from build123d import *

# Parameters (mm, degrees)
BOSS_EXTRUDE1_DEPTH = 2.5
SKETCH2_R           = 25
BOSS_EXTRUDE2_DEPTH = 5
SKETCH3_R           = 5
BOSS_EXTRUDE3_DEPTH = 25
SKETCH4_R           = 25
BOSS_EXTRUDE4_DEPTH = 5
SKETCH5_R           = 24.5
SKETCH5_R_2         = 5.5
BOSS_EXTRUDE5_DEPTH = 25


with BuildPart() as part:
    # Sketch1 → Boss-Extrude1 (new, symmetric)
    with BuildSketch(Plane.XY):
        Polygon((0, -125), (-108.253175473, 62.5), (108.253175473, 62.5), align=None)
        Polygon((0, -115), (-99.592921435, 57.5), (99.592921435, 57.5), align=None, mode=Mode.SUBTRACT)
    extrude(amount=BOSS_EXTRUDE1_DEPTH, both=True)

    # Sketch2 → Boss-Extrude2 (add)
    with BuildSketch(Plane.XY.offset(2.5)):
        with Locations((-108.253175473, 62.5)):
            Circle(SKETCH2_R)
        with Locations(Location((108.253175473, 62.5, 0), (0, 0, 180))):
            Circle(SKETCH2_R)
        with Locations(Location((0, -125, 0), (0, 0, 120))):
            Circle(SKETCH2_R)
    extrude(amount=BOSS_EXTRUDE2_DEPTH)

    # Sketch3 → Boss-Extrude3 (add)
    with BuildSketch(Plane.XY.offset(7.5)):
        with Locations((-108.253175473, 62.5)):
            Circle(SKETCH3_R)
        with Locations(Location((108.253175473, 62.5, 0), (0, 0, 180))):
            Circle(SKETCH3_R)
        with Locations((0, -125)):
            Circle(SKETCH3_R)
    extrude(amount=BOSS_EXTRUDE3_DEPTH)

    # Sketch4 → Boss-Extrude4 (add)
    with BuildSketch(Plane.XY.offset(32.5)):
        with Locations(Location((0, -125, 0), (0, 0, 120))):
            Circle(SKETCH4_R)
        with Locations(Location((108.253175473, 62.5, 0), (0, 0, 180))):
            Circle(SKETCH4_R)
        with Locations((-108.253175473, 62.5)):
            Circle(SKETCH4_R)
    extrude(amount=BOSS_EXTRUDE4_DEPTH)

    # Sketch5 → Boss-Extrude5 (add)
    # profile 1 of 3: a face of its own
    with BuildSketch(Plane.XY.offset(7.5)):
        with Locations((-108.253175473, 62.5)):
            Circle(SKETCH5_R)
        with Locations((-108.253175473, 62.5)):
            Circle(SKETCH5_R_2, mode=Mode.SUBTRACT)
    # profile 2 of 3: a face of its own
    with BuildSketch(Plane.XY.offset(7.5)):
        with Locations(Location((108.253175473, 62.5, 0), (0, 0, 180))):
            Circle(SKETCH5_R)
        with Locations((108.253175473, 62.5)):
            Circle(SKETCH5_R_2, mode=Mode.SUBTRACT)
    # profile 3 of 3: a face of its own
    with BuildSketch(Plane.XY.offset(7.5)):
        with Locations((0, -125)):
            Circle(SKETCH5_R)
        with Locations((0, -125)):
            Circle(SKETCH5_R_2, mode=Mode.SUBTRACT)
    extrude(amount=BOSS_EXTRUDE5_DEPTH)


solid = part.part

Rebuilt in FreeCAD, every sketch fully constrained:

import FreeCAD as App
import Part
import Sketcher

V = App.Vector
Q = App.Units.Quantity


def add_polygon(sketch, points):
    """Adds a closed chain of lines whose ends are joined by coincident constraints."""
    first, n = sketch.GeometryCount, len(points)
    for a, b in zip(points, points[1:] + points[:1]):
        sketch.addGeometry(Part.LineSegment(App.Vector(*a, 0), App.Vector(*b, 0)), False)
    for i in range(n):
        sketch.addConstraint(Sketcher.Constraint("Coincident", first + i, 2, first + (i + 1) % n, 1))

doc = App.newDocument("Part")
body = doc.addObject("PartDesign::Body", "Body")

# Sketch on XY plane
sketch1 = doc.addObject("Sketcher::SketchObject", "Sketch")
body.addObject(sketch1)
sketch1.AttachmentSupport = (doc.XY_Plane, [""])
sketch1.MapMode = "FlatFace"
add_polygon(sketch1, [(-108.253175, 62.5), (0, -125), (108.253175, 62.5)])  # lines 0-2
add_polygon(sketch1, [(0, -115), (-99.592921, 57.5), (99.592921, 57.5)])  # lines 3-5
sketch1.addConstraint([
    Sketcher.Constraint("Horizontal", 2),
    Sketcher.Constraint("Horizontal", 4),
    Sketcher.Constraint("PointOnObject", 0, 2, -2),
    Sketcher.Constraint("PointOnObject", 5, 2, -2),
    Sketcher.Constraint("Parallel", 0, 3),
    Sketcher.Constraint("Parallel", 1, 5),
    Sketcher.Constraint("Equal", 0, 1),
    Sketcher.Constraint("Angle", 0, Q("-60 deg")),
    Sketcher.Constraint("DistanceY", 0, 2, -1, 1, 125.0),
    Sketcher.Constraint("DistanceY", 5, 2, -1, 1, 115.0),
    Sketcher.Constraint("DistanceY", 3, 2, 2, 2, 5.0),
    Sketcher.Constraint("DistanceY", -1, 1, 1, 2, 62.5),
])
pad1 = doc.addObject("PartDesign::Pad", "Pad")
body.addObject(pad1)
pad1.Profile = sketch1
pad1.Length = 5
pad1.Midplane = True

# Sketch on XY plane
sketch2 = doc.addObject("Sketcher::SketchObject", "Sketch001")
body.addObject(sketch2)
sketch2.AttachmentSupport = (doc.XY_Plane, [""])
sketch2.MapMode = "FlatFace"
sketch2.AttachmentOffset = App.Placement(V(0, 0, 2.5), App.Rotation())
sketch2.addGeometry([
    Part.Circle(V(-108.253175, 62.5, 0), V(0, 0, 1), 25),
    Part.Circle(V(108.253175, 62.5, 0), V(0, 0, 1), 25),
    Part.Circle(V(0, -125, 0), V(0, 0, 1), 25),
], False)
sketch2.addConstraint([
    Sketcher.Constraint("Equal", 0, 1),
    Sketcher.Constraint("Equal", 1, 2),
    Sketcher.Constraint("Symmetric", 0, 3, 1, 3, -2),
    Sketcher.Constraint("PointOnObject", 2, 3, -2),
    Sketcher.Constraint("Diameter", 0, 50.0),
    Sketcher.Constraint("DistanceY", 2, 3, -1, 1, 125.0),
    Sketcher.Constraint("DistanceY", -1, 1, 0, 3, 62.5),
    Sketcher.Constraint("DistanceX", 0, 3, 1, 3, 216.506351),
])
pad2 = doc.addObject("PartDesign::Pad", "Pad001")
body.addObject(pad2)
pad2.Profile = sketch2
pad2.Length = 5

# Sketch on XY plane
sketch3 = doc.addObject("Sketcher::SketchObject", "Sketch002")
body.addObject(sketch3)
sketch3.AttachmentSupport = (doc.XY_Plane, [""])
sketch3.MapMode = "FlatFace"
sketch3.AttachmentOffset = App.Placement(V(0, 0, 7.5), App.Rotation())
sketch3.addGeometry([
    Part.Circle(V(-108.253175, 62.5, 0), V(0, 0, 1), 5),
    Part.Circle(V(108.253175, 62.5, 0), V(0, 0, 1), 5),
    Part.Circle(V(0, -125, 0), V(0, 0, 1), 5),
], False)
sketch3.addConstraint([
    Sketcher.Constraint("Equal", 0, 1),
    Sketcher.Constraint("Equal", 1, 2),
    Sketcher.Constraint("Symmetric", 0, 3, 1, 3, -2),
    Sketcher.Constraint("PointOnObject", 2, 3, -2),
    Sketcher.Constraint("Diameter", 0, 10.0),
    Sketcher.Constraint("DistanceY", 2, 3, -1, 1, 125.0),
    Sketcher.Constraint("DistanceY", -1, 1, 0, 3, 62.5),
    Sketcher.Constraint("DistanceX", 0, 3, 1, 3, 216.506351),
])
pad3 = doc.addObject("PartDesign::Pad", "Pad002")
body.addObject(pad3)
pad3.Profile = sketch3
pad3.Length = 25

# Sketch on XY plane
sketch4 = doc.addObject("Sketcher::SketchObject", "Sketch003")
body.addObject(sketch4)
sketch4.AttachmentSupport = (doc.XY_Plane, [""])
sketch4.MapMode = "FlatFace"
sketch4.AttachmentOffset = App.Placement(V(0, 0, 32.5), App.Rotation())
sketch4.addGeometry([
    Part.Circle(V(0, -125, 0), V(0, 0, 1), 25),
    Part.Circle(V(108.253175, 62.5, 0), V(0, 0, 1), 25),
    Part.Circle(V(-108.253175, 62.5, 0), V(0, 0, 1), 25),
], False)
sketch4.addConstraint([
    Sketcher.Constraint("Equal", 0, 1),
    Sketcher.Constraint("Equal", 1, 2),
    Sketcher.Constraint("Symmetric", 1, 3, 2, 3, -2),
    Sketcher.Constraint("PointOnObject", 0, 3, -2),
    Sketcher.Constraint("Diameter", 0, 50.0),
    Sketcher.Constraint("DistanceY", 0, 3, -1, 1, 125.0),
    Sketcher.Constraint("DistanceY", -1, 1, 1, 3, 62.5),
    Sketcher.Constraint("DistanceX", 2, 3, 1, 3, 216.506351),
])
pad4 = doc.addObject("PartDesign::Pad", "Pad003")
body.addObject(pad4)
pad4.Profile = sketch4
pad4.Length = 5

# Sketch on XY plane
sketch5 = doc.addObject("Sketcher::SketchObject", "Sketch004")
body.addObject(sketch5)
sketch5.AttachmentSupport = (doc.XY_Plane, [""])
sketch5.MapMode = "FlatFace"
sketch5.AttachmentOffset = App.Placement(V(0, 0, 7.5), App.Rotation())
sketch5.addGeometry([
    Part.Circle(V(-108.253175, 62.5, 0), V(0, 0, 1), 24.5),  # 0
    Part.Circle(V(-108.253175, 62.5, 0), V(0, 0, 1), 5.5),  # 1
    Part.Circle(V(108.253175, 62.5, 0), V(0, 0, 1), 24.5),  # 2
    Part.Circle(V(108.253175, 62.5, 0), V(0, 0, 1), 5.5),  # 3
    Part.Circle(V(0, -125, 0), V(0, 0, 1), 24.5),  # 4
    Part.Circle(V(0, -125, 0), V(0, 0, 1), 5.5),  # 5
], False)
sketch5.addConstraint([
    Sketcher.Constraint("Coincident", 1, 3, 0, 3),
    Sketcher.Constraint("Coincident", 3, 3, 2, 3),
    Sketcher.Constraint("Coincident", 5, 3, 4, 3),
    Sketcher.Constraint("Equal", 0, 2),
    Sketcher.Constraint("Equal", 1, 3),
    Sketcher.Constraint("Equal", 2, 4),
    Sketcher.Constraint("Equal", 3, 5),
    Sketcher.Constraint("Symmetric", 0, 3, 2, 3, -2),
    Sketcher.Constraint("PointOnObject", 4, 3, -2),
    Sketcher.Constraint("Diameter", 0, 49.0),
    Sketcher.Constraint("Diameter", 1, 11.0),
    Sketcher.Constraint("DistanceY", 4, 3, -1, 1, 125.0),
    Sketcher.Constraint("DistanceY", -1, 1, 0, 3, 62.5),
    Sketcher.Constraint("DistanceX", 0, 3, 2, 3, 216.506351),
])
pad5 = doc.addObject("PartDesign::Pad", "Pad004")
body.addObject(pad5)
pad5.Profile = sketch5
pad5.Length = 25

doc.recompute()
